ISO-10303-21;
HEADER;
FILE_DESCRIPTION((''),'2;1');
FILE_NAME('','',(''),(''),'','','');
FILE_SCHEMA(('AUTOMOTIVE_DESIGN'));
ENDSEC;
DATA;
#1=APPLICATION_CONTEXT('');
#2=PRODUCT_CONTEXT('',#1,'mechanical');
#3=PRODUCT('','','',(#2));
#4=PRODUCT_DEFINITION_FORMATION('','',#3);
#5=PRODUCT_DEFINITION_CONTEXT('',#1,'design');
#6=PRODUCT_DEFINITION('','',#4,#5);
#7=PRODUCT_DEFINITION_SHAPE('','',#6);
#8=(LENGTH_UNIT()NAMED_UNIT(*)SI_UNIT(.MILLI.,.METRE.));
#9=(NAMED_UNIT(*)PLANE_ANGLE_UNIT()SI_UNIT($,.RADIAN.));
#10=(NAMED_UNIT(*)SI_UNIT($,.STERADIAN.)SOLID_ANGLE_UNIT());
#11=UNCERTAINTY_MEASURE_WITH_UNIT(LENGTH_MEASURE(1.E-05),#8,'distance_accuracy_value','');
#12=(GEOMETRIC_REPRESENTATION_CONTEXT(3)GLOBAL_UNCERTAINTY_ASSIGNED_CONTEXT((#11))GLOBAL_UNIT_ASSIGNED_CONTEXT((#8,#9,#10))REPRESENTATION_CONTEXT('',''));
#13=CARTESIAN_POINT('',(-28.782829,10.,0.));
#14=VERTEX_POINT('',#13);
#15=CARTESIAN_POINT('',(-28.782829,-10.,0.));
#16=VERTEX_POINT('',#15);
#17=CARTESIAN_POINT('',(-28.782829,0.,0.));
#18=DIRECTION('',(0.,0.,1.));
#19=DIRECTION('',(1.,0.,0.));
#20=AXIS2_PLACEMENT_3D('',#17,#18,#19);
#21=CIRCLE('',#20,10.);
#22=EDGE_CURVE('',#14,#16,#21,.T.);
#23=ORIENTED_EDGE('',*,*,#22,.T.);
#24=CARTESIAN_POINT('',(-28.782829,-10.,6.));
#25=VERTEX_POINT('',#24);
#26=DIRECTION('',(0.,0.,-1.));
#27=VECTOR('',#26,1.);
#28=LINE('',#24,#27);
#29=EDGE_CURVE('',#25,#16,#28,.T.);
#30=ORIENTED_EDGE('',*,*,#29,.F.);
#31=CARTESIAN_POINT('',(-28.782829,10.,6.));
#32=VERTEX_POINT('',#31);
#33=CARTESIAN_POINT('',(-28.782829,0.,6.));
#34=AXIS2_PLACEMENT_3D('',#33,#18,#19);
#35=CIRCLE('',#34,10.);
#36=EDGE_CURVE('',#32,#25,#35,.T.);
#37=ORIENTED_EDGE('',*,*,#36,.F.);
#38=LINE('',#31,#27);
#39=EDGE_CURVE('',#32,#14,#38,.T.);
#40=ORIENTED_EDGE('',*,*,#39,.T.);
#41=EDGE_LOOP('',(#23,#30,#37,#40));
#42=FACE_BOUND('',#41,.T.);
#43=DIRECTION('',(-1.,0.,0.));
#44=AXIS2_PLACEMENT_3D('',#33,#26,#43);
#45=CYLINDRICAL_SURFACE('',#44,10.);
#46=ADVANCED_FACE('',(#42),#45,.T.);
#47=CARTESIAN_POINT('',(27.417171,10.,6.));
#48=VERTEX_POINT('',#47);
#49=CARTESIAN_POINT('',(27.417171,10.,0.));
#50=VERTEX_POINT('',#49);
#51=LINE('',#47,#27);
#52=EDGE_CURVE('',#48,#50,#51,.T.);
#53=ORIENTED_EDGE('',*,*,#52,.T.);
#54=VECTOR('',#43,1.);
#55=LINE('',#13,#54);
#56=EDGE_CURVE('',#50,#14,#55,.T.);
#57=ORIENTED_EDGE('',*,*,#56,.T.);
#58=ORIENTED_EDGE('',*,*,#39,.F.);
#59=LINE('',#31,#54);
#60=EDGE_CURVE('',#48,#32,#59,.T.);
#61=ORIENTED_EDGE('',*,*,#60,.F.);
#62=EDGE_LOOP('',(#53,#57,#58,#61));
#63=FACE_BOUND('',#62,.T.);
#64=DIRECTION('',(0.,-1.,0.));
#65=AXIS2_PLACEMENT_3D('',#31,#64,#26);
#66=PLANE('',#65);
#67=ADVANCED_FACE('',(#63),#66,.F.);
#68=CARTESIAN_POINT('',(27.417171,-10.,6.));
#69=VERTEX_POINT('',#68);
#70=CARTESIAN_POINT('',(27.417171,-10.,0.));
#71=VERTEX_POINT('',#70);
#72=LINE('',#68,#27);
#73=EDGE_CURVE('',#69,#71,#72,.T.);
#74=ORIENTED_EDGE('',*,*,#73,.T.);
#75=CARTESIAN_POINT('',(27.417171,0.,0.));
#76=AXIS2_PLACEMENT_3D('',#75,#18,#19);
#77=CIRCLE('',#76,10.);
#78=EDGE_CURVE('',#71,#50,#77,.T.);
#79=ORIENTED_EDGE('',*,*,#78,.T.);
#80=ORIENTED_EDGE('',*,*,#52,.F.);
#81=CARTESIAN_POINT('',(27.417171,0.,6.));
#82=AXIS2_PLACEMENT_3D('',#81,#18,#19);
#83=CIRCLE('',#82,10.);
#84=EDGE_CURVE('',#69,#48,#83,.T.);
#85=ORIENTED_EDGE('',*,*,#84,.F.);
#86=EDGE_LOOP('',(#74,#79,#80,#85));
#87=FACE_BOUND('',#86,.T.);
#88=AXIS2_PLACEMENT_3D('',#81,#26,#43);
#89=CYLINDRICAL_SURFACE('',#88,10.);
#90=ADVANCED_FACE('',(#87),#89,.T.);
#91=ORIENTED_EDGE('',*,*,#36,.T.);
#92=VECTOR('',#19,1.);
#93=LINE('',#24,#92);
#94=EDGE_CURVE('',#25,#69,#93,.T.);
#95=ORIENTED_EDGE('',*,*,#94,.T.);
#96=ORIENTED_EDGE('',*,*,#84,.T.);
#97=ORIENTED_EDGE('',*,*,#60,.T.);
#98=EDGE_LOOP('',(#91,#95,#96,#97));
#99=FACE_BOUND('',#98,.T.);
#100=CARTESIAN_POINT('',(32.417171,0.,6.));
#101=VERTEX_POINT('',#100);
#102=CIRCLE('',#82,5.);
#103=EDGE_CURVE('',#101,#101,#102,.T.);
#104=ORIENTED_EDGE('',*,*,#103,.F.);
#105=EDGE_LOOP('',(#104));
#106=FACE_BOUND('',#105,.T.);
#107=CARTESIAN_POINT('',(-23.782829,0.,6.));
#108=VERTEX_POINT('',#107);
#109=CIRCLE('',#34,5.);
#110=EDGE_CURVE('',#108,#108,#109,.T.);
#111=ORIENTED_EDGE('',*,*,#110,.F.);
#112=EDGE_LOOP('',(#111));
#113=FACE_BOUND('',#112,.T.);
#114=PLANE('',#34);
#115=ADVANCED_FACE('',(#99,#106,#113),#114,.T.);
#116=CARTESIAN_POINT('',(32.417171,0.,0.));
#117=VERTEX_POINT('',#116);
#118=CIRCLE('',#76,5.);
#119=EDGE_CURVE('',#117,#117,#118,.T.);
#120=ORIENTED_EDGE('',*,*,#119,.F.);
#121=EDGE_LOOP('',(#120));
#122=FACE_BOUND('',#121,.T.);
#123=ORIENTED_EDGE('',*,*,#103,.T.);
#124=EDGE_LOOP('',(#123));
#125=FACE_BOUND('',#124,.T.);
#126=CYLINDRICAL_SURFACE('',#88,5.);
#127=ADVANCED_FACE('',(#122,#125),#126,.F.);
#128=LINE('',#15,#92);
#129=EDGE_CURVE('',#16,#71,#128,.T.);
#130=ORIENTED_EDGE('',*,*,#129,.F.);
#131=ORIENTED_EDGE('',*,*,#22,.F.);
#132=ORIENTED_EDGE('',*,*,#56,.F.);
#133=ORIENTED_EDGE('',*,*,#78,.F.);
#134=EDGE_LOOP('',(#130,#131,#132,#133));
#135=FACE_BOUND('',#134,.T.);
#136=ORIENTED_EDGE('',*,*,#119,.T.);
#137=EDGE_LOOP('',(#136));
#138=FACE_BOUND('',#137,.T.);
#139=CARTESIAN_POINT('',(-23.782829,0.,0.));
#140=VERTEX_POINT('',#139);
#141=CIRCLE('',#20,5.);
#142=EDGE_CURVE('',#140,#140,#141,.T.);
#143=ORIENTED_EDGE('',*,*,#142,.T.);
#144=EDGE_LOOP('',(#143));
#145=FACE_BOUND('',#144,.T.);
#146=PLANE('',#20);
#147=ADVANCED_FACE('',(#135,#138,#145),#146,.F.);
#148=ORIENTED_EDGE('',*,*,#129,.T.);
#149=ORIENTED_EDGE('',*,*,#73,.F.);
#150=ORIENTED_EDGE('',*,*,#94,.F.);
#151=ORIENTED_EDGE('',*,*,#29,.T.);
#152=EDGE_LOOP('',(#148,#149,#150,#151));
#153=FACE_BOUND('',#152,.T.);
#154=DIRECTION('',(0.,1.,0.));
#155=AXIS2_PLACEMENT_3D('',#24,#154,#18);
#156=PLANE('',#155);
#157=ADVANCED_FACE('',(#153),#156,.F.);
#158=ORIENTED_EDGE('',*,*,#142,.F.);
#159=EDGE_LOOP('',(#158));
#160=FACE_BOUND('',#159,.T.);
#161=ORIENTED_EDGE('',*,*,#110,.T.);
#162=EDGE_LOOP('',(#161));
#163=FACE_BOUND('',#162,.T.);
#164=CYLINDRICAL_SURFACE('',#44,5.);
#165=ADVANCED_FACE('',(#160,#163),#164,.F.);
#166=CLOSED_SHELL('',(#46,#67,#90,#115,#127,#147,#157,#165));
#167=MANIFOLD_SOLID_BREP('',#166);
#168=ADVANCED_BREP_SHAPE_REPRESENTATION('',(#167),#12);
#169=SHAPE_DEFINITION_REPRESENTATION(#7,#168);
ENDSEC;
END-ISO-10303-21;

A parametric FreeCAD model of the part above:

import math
import FreeCAD as App
import Part
import Sketcher

V = App.Vector
Q = App.Units.Quantity

doc = App.newDocument("Part")
params = doc.addObject("Spreadsheet::Sheet", "Params")
for row, (alias, value) in enumerate([
    ("sketch1_diameter", "10 mm"),
    ("sketch1_radius", "10 mm"),
    ("sketch1_width", "56.2 mm"),
    ("pad1_length", "6 mm"),
], start=1):
    params.set(f"A{row}", alias)
    params.set(f"B{row}", "=" + value)
    params.setAlias(f"B{row}", alias)

body = doc.addObject("PartDesign::Body", "Body")

sketch1 = body.newObject("Sketcher::SketchObject", "Sketch")
sketch1.AttachmentSupport = (doc.getObject("XY_Plane"), [""])
sketch1.MapMode = "FlatFace"
sketch1.addGeometry([
    Part.LineSegment(V(27.417171, 10, 0), V(-28.782829, 10, 0)),
    Part.ArcOfCircle(Part.Circle(V(-28.782829, 0, 0), V(0, 0, 1), 10), math.radians(90), math.radians(270)),
    Part.LineSegment(V(-28.782829, -10, 0), V(27.417171, -10, 0)),
    Part.ArcOfCircle(Part.Circle(V(27.417171, 0, 0), V(0, 0, 1), 10), math.radians(-90), math.radians(90)),
    Part.Circle(V(27.417171, 0, 0), V(0, 0, 1), 5),
    Part.Circle(V(-28.782829, 0, 0), V(0, 0, 1), 5),
], False)
sketch1.addConstraint([
    Sketcher.Constraint("Tangent", 0, 2, 1, 1),
    Sketcher.Constraint("Tangent", 1, 2, 2, 1),
    Sketcher.Constraint("Tangent", 2, 2, 3, 1),
    Sketcher.Constraint("Tangent", 3, 2, 0, 1),
    Sketcher.Constraint("Horizontal", 0),
    Sketcher.Constraint("Horizontal", 2),
    Sketcher.Constraint("Coincident", 4, 3, 3, 3),
    Sketcher.Constraint("Coincident", 5, 3, 1, 3),
    Sketcher.Constraint("Equal", 4, 5),
    Sketcher.Constraint("PointOnObject", 1, 3, -1),
    Sketcher.Constraint("Diameter", 4, Q("10 mm")),
    Sketcher.Constraint("Radius", 1, Q("10 mm")),
    Sketcher.Constraint("DistanceX", 0, 2, 0, 1, Q("56.2 mm")),
    Sketcher.Constraint("DistanceX", 1, 3, -1, 1, Q("28.782829 mm")),
])
sketch1.setExpression("Constraints[10]", "Params.sketch1_diameter")
sketch1.setExpression("Constraints[11]", "Params.sketch1_radius")
sketch1.setExpression("Constraints[12]", "Params.sketch1_width")
pad1 = body.newObject("PartDesign::Pad", "Pad")
pad1.Profile = sketch1
pad1.setExpression("Length", "Params.pad1_length")

doc.recompute()
